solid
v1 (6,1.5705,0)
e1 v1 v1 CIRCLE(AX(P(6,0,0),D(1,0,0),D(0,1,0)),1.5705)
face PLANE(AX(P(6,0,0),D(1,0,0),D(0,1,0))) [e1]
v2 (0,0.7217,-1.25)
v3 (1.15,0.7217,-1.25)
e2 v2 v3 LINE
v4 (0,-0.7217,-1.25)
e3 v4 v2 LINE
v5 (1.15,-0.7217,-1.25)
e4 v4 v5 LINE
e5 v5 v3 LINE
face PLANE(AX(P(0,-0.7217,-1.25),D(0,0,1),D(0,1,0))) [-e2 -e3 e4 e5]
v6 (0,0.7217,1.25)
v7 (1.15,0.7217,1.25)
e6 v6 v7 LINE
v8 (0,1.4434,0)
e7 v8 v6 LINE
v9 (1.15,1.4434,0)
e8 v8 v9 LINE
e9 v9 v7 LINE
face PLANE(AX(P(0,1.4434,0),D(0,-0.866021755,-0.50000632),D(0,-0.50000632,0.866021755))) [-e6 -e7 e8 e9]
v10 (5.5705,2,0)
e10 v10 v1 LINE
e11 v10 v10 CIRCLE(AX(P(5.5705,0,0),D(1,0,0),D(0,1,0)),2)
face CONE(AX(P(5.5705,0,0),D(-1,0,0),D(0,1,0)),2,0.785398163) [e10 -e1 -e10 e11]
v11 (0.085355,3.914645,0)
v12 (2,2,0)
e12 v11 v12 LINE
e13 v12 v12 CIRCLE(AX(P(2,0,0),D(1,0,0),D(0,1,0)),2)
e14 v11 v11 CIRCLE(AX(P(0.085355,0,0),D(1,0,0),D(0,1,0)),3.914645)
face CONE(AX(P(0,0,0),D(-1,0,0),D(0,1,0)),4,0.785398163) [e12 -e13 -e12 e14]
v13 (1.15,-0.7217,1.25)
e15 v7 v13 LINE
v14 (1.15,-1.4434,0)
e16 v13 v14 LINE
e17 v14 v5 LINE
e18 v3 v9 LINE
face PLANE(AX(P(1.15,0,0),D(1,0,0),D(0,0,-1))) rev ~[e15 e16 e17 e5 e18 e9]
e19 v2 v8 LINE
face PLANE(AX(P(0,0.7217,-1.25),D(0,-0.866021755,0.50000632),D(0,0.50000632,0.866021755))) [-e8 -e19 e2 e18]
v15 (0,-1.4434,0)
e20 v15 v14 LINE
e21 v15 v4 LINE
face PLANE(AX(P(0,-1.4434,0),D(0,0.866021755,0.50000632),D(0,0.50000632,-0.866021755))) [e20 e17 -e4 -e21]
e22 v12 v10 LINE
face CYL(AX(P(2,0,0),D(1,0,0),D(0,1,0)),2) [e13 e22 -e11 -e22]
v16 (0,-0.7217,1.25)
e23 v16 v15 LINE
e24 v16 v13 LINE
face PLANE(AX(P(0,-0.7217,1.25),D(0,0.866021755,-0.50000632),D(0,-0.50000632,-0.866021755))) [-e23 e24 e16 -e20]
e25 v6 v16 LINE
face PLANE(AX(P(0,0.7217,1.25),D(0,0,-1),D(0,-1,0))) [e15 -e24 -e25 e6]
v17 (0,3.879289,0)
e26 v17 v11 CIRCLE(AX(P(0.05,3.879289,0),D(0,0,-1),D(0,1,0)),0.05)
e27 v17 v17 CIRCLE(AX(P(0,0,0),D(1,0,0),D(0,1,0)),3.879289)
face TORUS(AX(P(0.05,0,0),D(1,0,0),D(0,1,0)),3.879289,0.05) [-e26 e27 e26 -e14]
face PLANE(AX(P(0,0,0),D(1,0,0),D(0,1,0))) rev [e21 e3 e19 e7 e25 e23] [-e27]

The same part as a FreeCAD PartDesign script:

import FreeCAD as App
import Part
import Sketcher
from FreeCAD import Vector
Q = App.Units.Quantity


def edges_at(feature, points):
    """Names of the edges that pass closest to the given points."""
    edges = feature.Shape.Edges
    near = lambda p: min(range(len(edges)), key=lambda i: edges[i].distToShape(Part.Vertex(*p))[0])
    return sorted({f"Edge{near(p) + 1}" for p in points})


def add_polygon(sketch, points):
    """Adds a closed chain of lines whose ends are joined by coincident constraints."""
    first, n = sketch.GeometryCount, len(points)
    for a, b in zip(points, points[1:] + points[:1]):
        sketch.addGeometry(Part.LineSegment(App.Vector(*a, 0), App.Vector(*b, 0)), False)
    for i in range(n):
        sketch.addConstraint(Sketcher.Constraint("Coincident", first + i, 2, first + (i + 1) % n, 1))

doc = App.newDocument("Part")
body = doc.addObject("PartDesign::Body", "Body")

# Sketch on XY plane
sketch1 = doc.addObject("Sketcher::SketchObject", "Sketch")
body.addObject(sketch1)
sketch1.AttachmentSupport = (doc.XY_Plane, [""])
sketch1.MapMode = "FlatFace"
add_polygon(sketch1, [(0, 0), (6, 0), (6, 1.6), (5.6, 2), (2, 2), (0, 4)])  # lines 0-5
sketch1.addConstraint(Sketcher.Constraint("Horizontal", 0))
sketch1.addConstraint(Sketcher.Constraint("Vertical", 1))
sketch1.addConstraint(Sketcher.Constraint("Horizontal", 3))
sketch1.addConstraint(Sketcher.Constraint("Vertical", 5))
sketch1.addConstraint(Sketcher.Constraint("Coincident", 5, 2, -1, 1))
sketch1.addConstraint(Sketcher.Constraint("Parallel", 2, 4))
sketch1.addConstraint(Sketcher.Constraint("DistanceX", 0, 1, 0, 2, 6.0))
sketch1.addConstraint(Sketcher.Constraint("DistanceY", 5, 2, 5, 1, 4.0))
sketch1.addConstraint(Sketcher.Constraint("Angle", 2, Q("135 deg")))
sketch1.addConstraint(Sketcher.Constraint("DistanceY", -1, 1, 2, 2, 2.0))
sketch1.addConstraint(Sketcher.Constraint("DistanceX", 3, 2, 3, 1, 3.5705))
revolution = doc.addObject("PartDesign::Revolution", "Revolution")
body.addObject(revolution)
revolution.Profile = sketch1
revolution.ReferenceAxis = (sketch1, ["H_Axis"])
revolution.Angle = 360

# Sketch on YZ plane
sketch2 = doc.addObject("Sketcher::SketchObject", "Sketch001")
body.addObject(sketch2)
sketch2.AttachmentSupport = (doc.YZ_Plane, [""])
sketch2.MapMode = "FlatFace"
add_polygon(sketch2, [(0.7, 1.2), (-0.7, 1.2), (-1.4, 0), (-0.7, -1.2), (0.7, -1.2), (1.4, 0)])  # lines 0-5
sketch2.addConstraint(Sketcher.Constraint("Horizontal", 0))
sketch2.addConstraint(Sketcher.Constraint("Horizontal", 3))
sketch2.addConstraint(Sketcher.Constraint("Symmetric", 0, 2, 3, 2, -1, 1))
sketch2.addConstraint(Sketcher.Constraint("Symmetric", 1, 2, 4, 2, -1, 1))
sketch2.addConstraint(Sketcher.Constraint("PointOnObject", 1, 2, -1))
sketch2.addConstraint(Sketcher.Constraint("Parallel", 2, 5))
sketch2.addConstraint(Sketcher.Constraint("Vertical", 0, 2, 2, 2))
sketch2.addConstraint(Sketcher.Constraint("Angle", 1, Q("-120.0004 deg")))
sketch2.addConstraint(Sketcher.Constraint("DistanceY", 2, 2, 0, 2, 2.5))
sketch2.addConstraint(Sketcher.Constraint("DistanceX", 0, 2, 0, 1, 1.4434))
pocket1 = doc.addObject("PartDesign::Pocket", "Pocket")
body.addObject(pocket1)
pocket1.Profile = sketch2
pocket1.Length = 1.15
pocket1.Reversed = True
doc.recompute()

fillet = doc.addObject("PartDesign::Fillet", "Fillet")
body.addObject(fillet)
fillet.Base = (pocket1, edges_at(pocket1, [(0, -4, 0)]))
fillet.Radius = 0.05

doc.recompute()
